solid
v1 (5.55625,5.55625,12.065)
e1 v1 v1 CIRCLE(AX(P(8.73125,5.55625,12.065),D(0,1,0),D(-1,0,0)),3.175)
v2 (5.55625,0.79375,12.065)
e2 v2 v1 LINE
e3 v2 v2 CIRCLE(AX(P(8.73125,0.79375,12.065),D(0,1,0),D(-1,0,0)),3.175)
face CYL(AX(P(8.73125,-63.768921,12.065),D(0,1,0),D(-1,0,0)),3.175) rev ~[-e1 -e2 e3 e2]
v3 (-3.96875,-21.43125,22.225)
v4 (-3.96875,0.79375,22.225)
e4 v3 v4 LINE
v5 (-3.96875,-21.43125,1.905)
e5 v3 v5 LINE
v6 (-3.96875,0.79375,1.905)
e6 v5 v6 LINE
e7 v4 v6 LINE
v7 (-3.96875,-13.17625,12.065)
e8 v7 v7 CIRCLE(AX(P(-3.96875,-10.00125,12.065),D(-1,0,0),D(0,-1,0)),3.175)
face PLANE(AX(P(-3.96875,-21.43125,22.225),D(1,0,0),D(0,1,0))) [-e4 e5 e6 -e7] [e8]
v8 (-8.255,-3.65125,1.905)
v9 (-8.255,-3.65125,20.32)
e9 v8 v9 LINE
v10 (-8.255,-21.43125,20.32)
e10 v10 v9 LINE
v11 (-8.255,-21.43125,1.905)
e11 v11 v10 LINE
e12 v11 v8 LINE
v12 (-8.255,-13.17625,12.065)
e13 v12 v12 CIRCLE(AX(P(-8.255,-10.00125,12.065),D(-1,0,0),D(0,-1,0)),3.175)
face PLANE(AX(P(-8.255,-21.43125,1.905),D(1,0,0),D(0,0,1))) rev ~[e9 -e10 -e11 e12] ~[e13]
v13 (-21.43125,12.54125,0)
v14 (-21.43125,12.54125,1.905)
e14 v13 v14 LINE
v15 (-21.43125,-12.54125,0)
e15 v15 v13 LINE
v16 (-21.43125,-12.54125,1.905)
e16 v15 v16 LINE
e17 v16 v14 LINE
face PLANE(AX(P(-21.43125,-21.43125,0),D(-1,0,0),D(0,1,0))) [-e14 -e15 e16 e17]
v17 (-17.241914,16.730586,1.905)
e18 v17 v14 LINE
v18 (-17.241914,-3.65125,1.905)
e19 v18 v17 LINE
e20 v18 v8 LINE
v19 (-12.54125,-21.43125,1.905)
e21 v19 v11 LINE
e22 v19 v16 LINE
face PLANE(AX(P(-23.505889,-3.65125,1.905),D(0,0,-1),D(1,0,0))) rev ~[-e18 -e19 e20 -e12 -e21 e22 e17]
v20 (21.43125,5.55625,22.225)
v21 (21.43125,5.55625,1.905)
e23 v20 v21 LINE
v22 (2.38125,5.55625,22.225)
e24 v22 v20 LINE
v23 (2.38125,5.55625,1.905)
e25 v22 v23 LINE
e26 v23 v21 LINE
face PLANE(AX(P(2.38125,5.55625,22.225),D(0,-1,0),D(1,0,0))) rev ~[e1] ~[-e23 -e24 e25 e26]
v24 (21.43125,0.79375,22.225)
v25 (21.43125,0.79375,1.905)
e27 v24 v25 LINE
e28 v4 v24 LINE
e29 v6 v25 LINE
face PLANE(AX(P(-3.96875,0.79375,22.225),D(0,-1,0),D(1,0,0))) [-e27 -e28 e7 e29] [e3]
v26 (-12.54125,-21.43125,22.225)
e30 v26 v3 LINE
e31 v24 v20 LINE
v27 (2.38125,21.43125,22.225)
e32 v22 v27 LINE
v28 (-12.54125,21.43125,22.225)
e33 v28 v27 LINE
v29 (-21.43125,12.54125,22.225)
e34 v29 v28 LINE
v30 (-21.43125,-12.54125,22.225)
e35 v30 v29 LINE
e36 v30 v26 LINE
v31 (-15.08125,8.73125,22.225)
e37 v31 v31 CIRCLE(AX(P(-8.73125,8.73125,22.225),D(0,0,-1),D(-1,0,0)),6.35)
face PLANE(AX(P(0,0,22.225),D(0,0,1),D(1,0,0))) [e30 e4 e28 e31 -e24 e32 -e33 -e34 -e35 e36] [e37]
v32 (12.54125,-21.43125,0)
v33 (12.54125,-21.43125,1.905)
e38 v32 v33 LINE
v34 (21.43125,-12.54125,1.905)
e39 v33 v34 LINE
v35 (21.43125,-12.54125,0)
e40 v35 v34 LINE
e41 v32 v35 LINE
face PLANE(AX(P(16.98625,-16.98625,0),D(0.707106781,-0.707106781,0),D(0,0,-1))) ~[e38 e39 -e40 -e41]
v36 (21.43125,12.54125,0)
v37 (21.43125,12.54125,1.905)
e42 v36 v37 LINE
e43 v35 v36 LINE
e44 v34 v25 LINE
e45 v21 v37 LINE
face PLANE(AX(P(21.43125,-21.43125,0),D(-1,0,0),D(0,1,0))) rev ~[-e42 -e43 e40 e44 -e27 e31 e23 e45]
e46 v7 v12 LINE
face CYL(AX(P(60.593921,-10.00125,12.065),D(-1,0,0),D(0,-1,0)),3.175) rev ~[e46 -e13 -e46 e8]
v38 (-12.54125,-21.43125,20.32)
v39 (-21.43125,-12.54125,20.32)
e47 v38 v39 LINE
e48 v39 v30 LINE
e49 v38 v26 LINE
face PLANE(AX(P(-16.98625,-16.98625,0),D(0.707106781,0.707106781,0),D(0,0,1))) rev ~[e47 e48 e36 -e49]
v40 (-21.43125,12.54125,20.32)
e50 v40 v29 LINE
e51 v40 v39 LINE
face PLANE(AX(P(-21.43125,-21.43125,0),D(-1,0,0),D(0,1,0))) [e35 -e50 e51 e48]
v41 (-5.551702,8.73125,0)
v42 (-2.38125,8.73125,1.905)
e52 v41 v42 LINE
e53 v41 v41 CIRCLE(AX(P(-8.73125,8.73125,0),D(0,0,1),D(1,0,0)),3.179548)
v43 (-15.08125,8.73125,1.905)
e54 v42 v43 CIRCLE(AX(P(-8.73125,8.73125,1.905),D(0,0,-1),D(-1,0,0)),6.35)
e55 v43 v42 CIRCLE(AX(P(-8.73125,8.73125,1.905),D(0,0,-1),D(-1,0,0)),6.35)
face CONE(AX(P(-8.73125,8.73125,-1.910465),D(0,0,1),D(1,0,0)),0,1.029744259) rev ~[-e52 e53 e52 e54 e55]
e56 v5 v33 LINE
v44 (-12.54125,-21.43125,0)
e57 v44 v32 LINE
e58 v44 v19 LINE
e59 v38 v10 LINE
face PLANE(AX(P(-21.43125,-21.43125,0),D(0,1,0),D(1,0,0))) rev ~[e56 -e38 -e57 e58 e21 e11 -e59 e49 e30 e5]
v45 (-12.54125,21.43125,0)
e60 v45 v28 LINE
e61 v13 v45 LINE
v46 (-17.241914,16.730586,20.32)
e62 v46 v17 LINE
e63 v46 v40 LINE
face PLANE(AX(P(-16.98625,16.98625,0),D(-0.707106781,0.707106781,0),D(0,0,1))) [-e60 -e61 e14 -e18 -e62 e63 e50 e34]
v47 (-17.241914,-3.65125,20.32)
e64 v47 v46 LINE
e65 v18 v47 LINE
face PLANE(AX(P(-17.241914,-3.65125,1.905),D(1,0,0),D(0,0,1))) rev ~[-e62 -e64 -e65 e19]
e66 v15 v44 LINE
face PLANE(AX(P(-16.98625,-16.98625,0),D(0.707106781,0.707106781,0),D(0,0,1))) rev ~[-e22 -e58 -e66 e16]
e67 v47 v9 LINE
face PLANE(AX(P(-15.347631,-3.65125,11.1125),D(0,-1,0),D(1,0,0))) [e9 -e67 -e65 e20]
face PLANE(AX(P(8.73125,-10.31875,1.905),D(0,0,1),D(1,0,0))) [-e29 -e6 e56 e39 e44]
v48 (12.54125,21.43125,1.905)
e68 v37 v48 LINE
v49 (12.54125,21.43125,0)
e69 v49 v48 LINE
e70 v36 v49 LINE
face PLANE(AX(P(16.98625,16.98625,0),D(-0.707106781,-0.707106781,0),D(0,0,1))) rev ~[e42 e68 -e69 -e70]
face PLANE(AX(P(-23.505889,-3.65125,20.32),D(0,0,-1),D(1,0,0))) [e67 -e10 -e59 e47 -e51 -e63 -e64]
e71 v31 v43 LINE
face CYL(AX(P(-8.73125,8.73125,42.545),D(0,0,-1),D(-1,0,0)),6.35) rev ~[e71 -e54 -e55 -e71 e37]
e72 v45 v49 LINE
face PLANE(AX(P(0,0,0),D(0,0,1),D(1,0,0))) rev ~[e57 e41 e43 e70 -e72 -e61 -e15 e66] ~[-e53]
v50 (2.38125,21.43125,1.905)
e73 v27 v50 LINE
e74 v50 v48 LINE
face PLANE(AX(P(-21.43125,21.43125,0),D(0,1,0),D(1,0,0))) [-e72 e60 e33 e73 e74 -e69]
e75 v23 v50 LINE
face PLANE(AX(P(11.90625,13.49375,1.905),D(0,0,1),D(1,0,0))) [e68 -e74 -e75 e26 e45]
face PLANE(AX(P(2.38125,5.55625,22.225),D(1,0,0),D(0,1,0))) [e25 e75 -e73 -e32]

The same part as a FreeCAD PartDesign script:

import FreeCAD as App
import Part
import Sketcher

V = App.Vector
Q = App.Units.Quantity


def edges_at(feature, points):
    """Names of the edges that pass closest to the given points."""
    edges = feature.Shape.Edges
    near = lambda p: min(range(len(edges)), key=lambda i: edges[i].distToShape(Part.Vertex(*p))[0])
    return sorted({f"Edge{near(p) + 1}" for p in points})

doc = App.newDocument("Part")
params = doc.addObject("Spreadsheet::Sheet", "Params")
for row, (alias, value) in enumerate([
    ("sketch1_width", "1.6875 in"),
    ("pad1_length", "0.875 in"),
    ("chamfer_size", "0.35 in"),
    ("sketch2_width", "1 in"),
    ("sketch2_height", "0.875 in"),
    ("pocket1_length", "0.8 in"),
    ("sketch3_width", "0.75 in"),
    ("sketch3_height", "0.625 in"),
    ("pocket2_length", "0.8 in"),
    ("sketch4_diameter", "0.5 in"),
    ("hole_diameter", "0.5 in"),
    ("hole_depth", "0.8 in"),
    ("sketch5_height", "0.725 in"),
    ("pocket3_length", "0.7 in"),
    ("sketch6_height", "0.725 in"),
    ("sketch7_diameter", "0.25 in"),
    ("hole2_diameter", "0.25 in"),
    ("sketch8_diameter", "0.25 in"),
    ("hole3_diameter", "0.25 in"),
], start=1):
    params.set(f"A{row}", alias)
    params.set(f"B{row}", "=" + value)
    params.setAlias(f"B{row}", alias)

body = doc.addObject("PartDesign::Body", "Body")

# Sketch on XY plane
sketch1 = body.newObject("Sketcher::SketchObject", "Sketch")
sketch1.AttachmentSupport = (doc.getObject("XY_Plane"), [""])
sketch1.MapMode = "FlatFace"
sketch1.addGeometry([
    Part.LineSegment(V(-21, 21, 0), V(-21, -21, 0)),
    Part.LineSegment(V(-21, -21, 0), V(21, -21, 0)),
    Part.LineSegment(V(21, -21, 0), V(21, 21, 0)),
    Part.LineSegment(V(21, 21, 0), V(-21, 21, 0)),
], False)
sketch1.addConstraint([
    Sketcher.Constraint("Coincident", 0, 2, 1, 1),
    Sketcher.Constraint("Coincident", 1, 2, 2, 1),
    Sketcher.Constraint("Coincident", 2, 2, 3, 1),
    Sketcher.Constraint("Coincident", 3, 2, 0, 1),
    Sketcher.Constraint("Vertical", 0),
    Sketcher.Constraint("Horizontal", 1),
    Sketcher.Constraint("Vertical", 2),
    Sketcher.Constraint("Horizontal", 3),
    Sketcher.Constraint("Symmetric", 0, 2, 2, 2, -1, 1),
    Sketcher.Constraint("Equal", 3, 0),
    Sketcher.Constraint("DistanceX", 1, 1, 1, 2, Q("1.6875 in")),
])
sketch1.setExpression("Constraints[10]", "Params.sketch1_width")
pad1 = body.newObject("PartDesign::Pad", "Pad")
pad1.Profile = sketch1
pad1.setExpression("Length", "Params.pad1_length")
doc.recompute()

chamfer = body.newObject("PartDesign::Chamfer", "Chamfer")
chamfer.Base = (pad1, edges_at(pad1, [
    (-21.431, -21.431, 11.113),
    (21.431, -21.431, 11.113),
    (21.431, 21.431, 11.113),
    (-21.431, 21.431, 11.113),
]))
chamfer.setExpression("Size", "Params.chamfer_size")

# Sketch on XY plane
sketch2 = body.newObject("Sketcher::SketchObject", "Sketch001")
sketch2.AttachmentSupport = (doc.getObject("XY_Plane"), [""])
sketch2.MapMode = "FlatFace"
sketch2.AttachmentOffset = App.Placement(V(0, 0, 0.875 * 25.4), App.Rotation())
sketch2.addGeometry([
    Part.LineSegment(V(-4, 1, 0), V(-4, -21, 0)),
    Part.LineSegment(V(-4, -21, 0), V(21, -21, 0)),
    Part.LineSegment(V(21, -21, 0), V(21, 1, 0)),
    Part.LineSegment(V(21, 1, 0), V(-4, 1, 0)),
], False)
sketch2.addConstraint([
    Sketcher.Constraint("Coincident", 0, 2, 1, 1),
    Sketcher.Constraint("Coincident", 1, 2, 2, 1),
    Sketcher.Constraint("Coincident", 2, 2, 3, 1),
    Sketcher.Constraint("Coincident", 3, 2, 0, 1),
    Sketcher.Constraint("Vertical", 0),
    Sketcher.Constraint("Horizontal", 1),
    Sketcher.Constraint("Vertical", 2),
    Sketcher.Constraint("Horizontal", 3),
    Sketcher.Constraint("DistanceX", 1, 1, 1, 2, Q("1 in")),
    Sketcher.Constraint("DistanceY", 0, 2, 0, 1, Q("0.875 in")),
    Sketcher.Constraint("DistanceX", 0, 2, -1, 1, Q("0.15625 in")),
    Sketcher.Constraint("DistanceY", 0, 2, -1, 1, Q("0.84375 in")),
])
sketch2.setExpression("Constraints[8]", "Params.sketch2_width")
sketch2.setExpression("Constraints[9]", "Params.sketch2_height")
pocket1 = body.newObject("PartDesign::Pocket", "Pocket")
pocket1.Profile = sketch2
pocket1.setExpression("Length", "Params.pocket1_length")

# Sketch on XY plane
sketch3 = body.newObject("Sketcher::SketchObject", "Sketch002")
sketch3.AttachmentSupport = (doc.getObject("XY_Plane"), [""])
sketch3.MapMode = "FlatFace"
sketch3.AttachmentOffset = App.Placement(V(0, 0, 0.875 * 25.4), App.Rotation())
sketch3.addGeometry([
    Part.LineSegment(V(2, 21, 0), V(2, 6, 0)),
    Part.LineSegment(V(2, 6, 0), V(21, 6, 0)),
    Part.LineSegment(V(21, 6, 0), V(21, 21, 0)),
    Part.LineSegment(V(21, 21, 0), V(2, 21, 0)),
], False)
sketch3.addConstraint([
    Sketcher.Constraint("Coincident", 0, 2, 1, 1),
    Sketcher.Constraint("Coincident", 1, 2, 2, 1),
    Sketcher.Constraint("Coincident", 2, 2, 3, 1),
    Sketcher.Constraint("Coincident", 3, 2, 0, 1),
    Sketcher.Constraint("Vertical", 0),
    Sketcher.Constraint("Horizontal", 1),
    Sketcher.Constraint("Vertical", 2),
    Sketcher.Constraint("Horizontal", 3),
    Sketcher.Constraint("DistanceX", 1, 1, 1, 2, Q("0.75 in")),
    Sketcher.Constraint("DistanceY", 0, 2, 0, 1, Q("0.625 in")),
    Sketcher.Constraint("DistanceX", -1, 1, 0, 2, Q("0.09375 in")),
    Sketcher.Constraint("DistanceY", -1, 1, 0, 2, Q("0.21875 in")),
])
sketch3.setExpression("Constraints[8]", "Params.sketch3_width")
sketch3.setExpression("Constraints[9]", "Params.sketch3_height")
pocket2 = body.newObject("PartDesign::Pocket", "Pocket001")
pocket2.Profile = sketch3
pocket2.setExpression("Length", "Params.pocket2_length")

# Sketch on XY plane
sketch4 = body.newObject("Sketcher::SketchObject", "Sketch003")
sketch4.AttachmentSupport = (doc.getObject("XY_Plane"), [""])
sketch4.MapMode = "FlatFace"
sketch4.AttachmentOffset = App.Placement(V(0, 0, 0.875 * 25.4), App.Rotation())
sketch4.addGeometry(Part.Circle(V(-9, 9, 0), V(0, 0, 1), 6), False)
sketch4.addConstraint([
    Sketcher.Constraint("Diameter", 0, Q("0.5 in")),
    Sketcher.Constraint("DistanceX", 0, 3, -1, 1, Q("0.34375 in")),
    Sketcher.Constraint("DistanceY", -1, 1, 0, 3, Q("0.34375 in")),
])
sketch4.setExpression("Constraints[0]", "Params.sketch4_diameter")
doc.recompute()
hole = body.newObject("PartDesign::Hole", "Hole")
hole.Profile = sketch4
hole.ThreadType = "None"
hole.setExpression("Diameter", "Params.hole_diameter")
hole.DepthType = "Dimension"
hole.setExpression("Depth", "Params.hole_depth")
hole.DrillPoint = "Angled"
hole.DrillPointAngle = 118

# Sketch on XZ plane
sketch5 = body.newObject("Sketcher::SketchObject", "Sketch004")
sketch5.AttachmentSupport = (doc.getObject("XZ_Plane"), [""])
sketch5.MapMode = "FlatFace"
sketch5.AttachmentOffset = App.Placement(V(0, 0, 0.84375 * 25.4), App.Rotation())
sketch5.addGeometry([
    Part.LineSegment(V(-22, 20, 0), V(-22, 2, 0)),
    Part.LineSegment(V(-22, 2, 0), V(-8, 2, 0)),
    Part.LineSegment(V(-8, 2, 0), V(-8, 20, 0)),
    Part.LineSegment(V(-8, 20, 0), V(-22, 20, 0)),
], False)
sketch5.addConstraint([
    Sketcher.Constraint("Coincident", 0, 2, 1, 1),
    Sketcher.Constraint("Coincident", 1, 2, 2, 1),
    Sketcher.Constraint("Coincident", 2, 2, 3, 1),
    Sketcher.Constraint("Coincident", 3, 2, 0, 1),
    Sketcher.Constraint("Vertical", 0),
    Sketcher.Constraint("Horizontal", 1),
    Sketcher.Constraint("Vertical", 2),
    Sketcher.Constraint("Horizontal", 3),
    Sketcher.Constraint("DistanceY", -1, 1, 2, 2, Q("0.8 in")),
    Sketcher.Constraint("DistanceY", 0, 2, 0, 1, Q("0.725 in")),
    Sketcher.Constraint("DistanceX", 1, 2, -1, 1, Q("0.325 in")),
    Sketcher.Constraint("DistanceX", 1, 1, 1, 2, 14.185262),
])
sketch5.setExpression("Constraints[9]", "Params.sketch5_height")
pocket3 = body.newObject("PartDesign::Pocket", "Pocket002")
pocket3.Profile = sketch5
pocket3.setExpression("Length", "Params.pocket3_length")

# Sketch on XZ plane
sketch6 = body.newObject("Sketcher::SketchObject", "Sketch005")
sketch6.AttachmentSupport = (doc.getObject("XZ_Plane"), [""])
sketch6.MapMode = "FlatFace"
sketch6.AttachmentOffset = App.Placement(V(0, 0, 3.65125), App.Rotation())
sketch6.addGeometry([
    Part.LineSegment(V(-24, 20, 0), V(-24, 2, 0)),
    Part.LineSegment(V(-24, 2, 0), V(-17, 2, 0)),
    Part.LineSegment(V(-17, 2, 0), V(-17, 20, 0)),
    Part.LineSegment(V(-17, 20, 0), V(-24, 20, 0)),
], False)
sketch6.addConstraint([
    Sketcher.Constraint("Coincident", 0, 2, 1, 1),
    Sketcher.Constraint("Coincident", 1, 2, 2, 1),
    Sketcher.Constraint("Coincident", 2, 2, 3, 1),
    Sketcher.Constraint("Coincident", 3, 2, 0, 1),
    Sketcher.Constraint("Vertical", 0),
    Sketcher.Constraint("Horizontal", 1),
    Sketcher.Constraint("Vertical", 2),
    Sketcher.Constraint("Horizontal", 3),
    Sketcher.Constraint("DistanceY", -1, 1, 2, 2, Q("0.8 in")),
    Sketcher.Constraint("DistanceY", 0, 2, 0, 1, Q("0.725 in")),
    Sketcher.Constraint("DistanceX", 1, 1, 1, 2, 6.263975),
    Sketcher.Constraint("DistanceX", 0, 2, -1, 1, 23.505889),
])
sketch6.setExpression("Constraints[9]", "Params.sketch6_height")
pocket4 = body.newObject("PartDesign::Pocket", "Pocket003")
pocket4.Profile = sketch6
pocket4.Type = "ThroughAll"

# Sketch on YZ plane
sketch7 = body.newObject("Sketcher::SketchObject", "Sketch006")
sketch7.AttachmentSupport = (doc.getObject("YZ_Plane"), [""])
sketch7.MapMode = "FlatFace"
sketch7.AttachmentOffset = App.Placement(V(0, 0, -0.15625 * 25.4), App.Rotation())
sketch7.addGeometry(Part.Circle(V(-10, 12.1, 0), V(0, 0, 1), 3.2), False)
sketch7.addConstraint([
    Sketcher.Constraint("Diameter", 0, Q("0.25 in")),
    Sketcher.Constraint("DistanceY", -1, 1, 0, 3, Q("0.475 in")),
    Sketcher.Constraint("DistanceX", 0, 3, -1, 1, 10.00125),
])
sketch7.setExpression("Constraints[0]", "Params.sketch7_diameter")
doc.recompute()
hole2 = body.newObject("PartDesign::Hole", "Hole001")
hole2.Profile = sketch7
hole2.ThreadType = "None"
hole2.setExpression("Diameter", "Params.hole2_diameter")
hole2.DepthType = "ThroughAll"

# Sketch on XZ plane
sketch8 = body.newObject("Sketcher::SketchObject", "Sketch007")
sketch8.AttachmentSupport = (doc.getObject("XZ_Plane"), [""])
sketch8.MapMode = "FlatFace"
sketch8.AttachmentOffset = App.Placement(V(0, 0, -0.03125 * 25.4), App.Rotation())
sketch8.addGeometry(Part.Circle(V(8.7, 12.1, 0), V(0, 0, 1), 3.2), False)
sketch8.addConstraint([
    Sketcher.Constraint("Diameter", 0, Q("0.25 in")),
    Sketcher.Constraint("DistanceX", -1, 1, 0, 3, Q("0.34375 in")),
    Sketcher.Constraint("DistanceY", -1, 1, 0, 3, Q("0.475 in")),
])
sketch8.setExpression("Constraints[0]", "Params.sketch8_diameter")
doc.recompute()
hole3 = body.newObject("PartDesign::Hole", "Hole002")
hole3.Profile = sketch8
hole3.ThreadType = "None"
hole3.setExpression("Diameter", "Params.hole3_diameter")
hole3.DepthType = "ThroughAll"

doc.recompute()
